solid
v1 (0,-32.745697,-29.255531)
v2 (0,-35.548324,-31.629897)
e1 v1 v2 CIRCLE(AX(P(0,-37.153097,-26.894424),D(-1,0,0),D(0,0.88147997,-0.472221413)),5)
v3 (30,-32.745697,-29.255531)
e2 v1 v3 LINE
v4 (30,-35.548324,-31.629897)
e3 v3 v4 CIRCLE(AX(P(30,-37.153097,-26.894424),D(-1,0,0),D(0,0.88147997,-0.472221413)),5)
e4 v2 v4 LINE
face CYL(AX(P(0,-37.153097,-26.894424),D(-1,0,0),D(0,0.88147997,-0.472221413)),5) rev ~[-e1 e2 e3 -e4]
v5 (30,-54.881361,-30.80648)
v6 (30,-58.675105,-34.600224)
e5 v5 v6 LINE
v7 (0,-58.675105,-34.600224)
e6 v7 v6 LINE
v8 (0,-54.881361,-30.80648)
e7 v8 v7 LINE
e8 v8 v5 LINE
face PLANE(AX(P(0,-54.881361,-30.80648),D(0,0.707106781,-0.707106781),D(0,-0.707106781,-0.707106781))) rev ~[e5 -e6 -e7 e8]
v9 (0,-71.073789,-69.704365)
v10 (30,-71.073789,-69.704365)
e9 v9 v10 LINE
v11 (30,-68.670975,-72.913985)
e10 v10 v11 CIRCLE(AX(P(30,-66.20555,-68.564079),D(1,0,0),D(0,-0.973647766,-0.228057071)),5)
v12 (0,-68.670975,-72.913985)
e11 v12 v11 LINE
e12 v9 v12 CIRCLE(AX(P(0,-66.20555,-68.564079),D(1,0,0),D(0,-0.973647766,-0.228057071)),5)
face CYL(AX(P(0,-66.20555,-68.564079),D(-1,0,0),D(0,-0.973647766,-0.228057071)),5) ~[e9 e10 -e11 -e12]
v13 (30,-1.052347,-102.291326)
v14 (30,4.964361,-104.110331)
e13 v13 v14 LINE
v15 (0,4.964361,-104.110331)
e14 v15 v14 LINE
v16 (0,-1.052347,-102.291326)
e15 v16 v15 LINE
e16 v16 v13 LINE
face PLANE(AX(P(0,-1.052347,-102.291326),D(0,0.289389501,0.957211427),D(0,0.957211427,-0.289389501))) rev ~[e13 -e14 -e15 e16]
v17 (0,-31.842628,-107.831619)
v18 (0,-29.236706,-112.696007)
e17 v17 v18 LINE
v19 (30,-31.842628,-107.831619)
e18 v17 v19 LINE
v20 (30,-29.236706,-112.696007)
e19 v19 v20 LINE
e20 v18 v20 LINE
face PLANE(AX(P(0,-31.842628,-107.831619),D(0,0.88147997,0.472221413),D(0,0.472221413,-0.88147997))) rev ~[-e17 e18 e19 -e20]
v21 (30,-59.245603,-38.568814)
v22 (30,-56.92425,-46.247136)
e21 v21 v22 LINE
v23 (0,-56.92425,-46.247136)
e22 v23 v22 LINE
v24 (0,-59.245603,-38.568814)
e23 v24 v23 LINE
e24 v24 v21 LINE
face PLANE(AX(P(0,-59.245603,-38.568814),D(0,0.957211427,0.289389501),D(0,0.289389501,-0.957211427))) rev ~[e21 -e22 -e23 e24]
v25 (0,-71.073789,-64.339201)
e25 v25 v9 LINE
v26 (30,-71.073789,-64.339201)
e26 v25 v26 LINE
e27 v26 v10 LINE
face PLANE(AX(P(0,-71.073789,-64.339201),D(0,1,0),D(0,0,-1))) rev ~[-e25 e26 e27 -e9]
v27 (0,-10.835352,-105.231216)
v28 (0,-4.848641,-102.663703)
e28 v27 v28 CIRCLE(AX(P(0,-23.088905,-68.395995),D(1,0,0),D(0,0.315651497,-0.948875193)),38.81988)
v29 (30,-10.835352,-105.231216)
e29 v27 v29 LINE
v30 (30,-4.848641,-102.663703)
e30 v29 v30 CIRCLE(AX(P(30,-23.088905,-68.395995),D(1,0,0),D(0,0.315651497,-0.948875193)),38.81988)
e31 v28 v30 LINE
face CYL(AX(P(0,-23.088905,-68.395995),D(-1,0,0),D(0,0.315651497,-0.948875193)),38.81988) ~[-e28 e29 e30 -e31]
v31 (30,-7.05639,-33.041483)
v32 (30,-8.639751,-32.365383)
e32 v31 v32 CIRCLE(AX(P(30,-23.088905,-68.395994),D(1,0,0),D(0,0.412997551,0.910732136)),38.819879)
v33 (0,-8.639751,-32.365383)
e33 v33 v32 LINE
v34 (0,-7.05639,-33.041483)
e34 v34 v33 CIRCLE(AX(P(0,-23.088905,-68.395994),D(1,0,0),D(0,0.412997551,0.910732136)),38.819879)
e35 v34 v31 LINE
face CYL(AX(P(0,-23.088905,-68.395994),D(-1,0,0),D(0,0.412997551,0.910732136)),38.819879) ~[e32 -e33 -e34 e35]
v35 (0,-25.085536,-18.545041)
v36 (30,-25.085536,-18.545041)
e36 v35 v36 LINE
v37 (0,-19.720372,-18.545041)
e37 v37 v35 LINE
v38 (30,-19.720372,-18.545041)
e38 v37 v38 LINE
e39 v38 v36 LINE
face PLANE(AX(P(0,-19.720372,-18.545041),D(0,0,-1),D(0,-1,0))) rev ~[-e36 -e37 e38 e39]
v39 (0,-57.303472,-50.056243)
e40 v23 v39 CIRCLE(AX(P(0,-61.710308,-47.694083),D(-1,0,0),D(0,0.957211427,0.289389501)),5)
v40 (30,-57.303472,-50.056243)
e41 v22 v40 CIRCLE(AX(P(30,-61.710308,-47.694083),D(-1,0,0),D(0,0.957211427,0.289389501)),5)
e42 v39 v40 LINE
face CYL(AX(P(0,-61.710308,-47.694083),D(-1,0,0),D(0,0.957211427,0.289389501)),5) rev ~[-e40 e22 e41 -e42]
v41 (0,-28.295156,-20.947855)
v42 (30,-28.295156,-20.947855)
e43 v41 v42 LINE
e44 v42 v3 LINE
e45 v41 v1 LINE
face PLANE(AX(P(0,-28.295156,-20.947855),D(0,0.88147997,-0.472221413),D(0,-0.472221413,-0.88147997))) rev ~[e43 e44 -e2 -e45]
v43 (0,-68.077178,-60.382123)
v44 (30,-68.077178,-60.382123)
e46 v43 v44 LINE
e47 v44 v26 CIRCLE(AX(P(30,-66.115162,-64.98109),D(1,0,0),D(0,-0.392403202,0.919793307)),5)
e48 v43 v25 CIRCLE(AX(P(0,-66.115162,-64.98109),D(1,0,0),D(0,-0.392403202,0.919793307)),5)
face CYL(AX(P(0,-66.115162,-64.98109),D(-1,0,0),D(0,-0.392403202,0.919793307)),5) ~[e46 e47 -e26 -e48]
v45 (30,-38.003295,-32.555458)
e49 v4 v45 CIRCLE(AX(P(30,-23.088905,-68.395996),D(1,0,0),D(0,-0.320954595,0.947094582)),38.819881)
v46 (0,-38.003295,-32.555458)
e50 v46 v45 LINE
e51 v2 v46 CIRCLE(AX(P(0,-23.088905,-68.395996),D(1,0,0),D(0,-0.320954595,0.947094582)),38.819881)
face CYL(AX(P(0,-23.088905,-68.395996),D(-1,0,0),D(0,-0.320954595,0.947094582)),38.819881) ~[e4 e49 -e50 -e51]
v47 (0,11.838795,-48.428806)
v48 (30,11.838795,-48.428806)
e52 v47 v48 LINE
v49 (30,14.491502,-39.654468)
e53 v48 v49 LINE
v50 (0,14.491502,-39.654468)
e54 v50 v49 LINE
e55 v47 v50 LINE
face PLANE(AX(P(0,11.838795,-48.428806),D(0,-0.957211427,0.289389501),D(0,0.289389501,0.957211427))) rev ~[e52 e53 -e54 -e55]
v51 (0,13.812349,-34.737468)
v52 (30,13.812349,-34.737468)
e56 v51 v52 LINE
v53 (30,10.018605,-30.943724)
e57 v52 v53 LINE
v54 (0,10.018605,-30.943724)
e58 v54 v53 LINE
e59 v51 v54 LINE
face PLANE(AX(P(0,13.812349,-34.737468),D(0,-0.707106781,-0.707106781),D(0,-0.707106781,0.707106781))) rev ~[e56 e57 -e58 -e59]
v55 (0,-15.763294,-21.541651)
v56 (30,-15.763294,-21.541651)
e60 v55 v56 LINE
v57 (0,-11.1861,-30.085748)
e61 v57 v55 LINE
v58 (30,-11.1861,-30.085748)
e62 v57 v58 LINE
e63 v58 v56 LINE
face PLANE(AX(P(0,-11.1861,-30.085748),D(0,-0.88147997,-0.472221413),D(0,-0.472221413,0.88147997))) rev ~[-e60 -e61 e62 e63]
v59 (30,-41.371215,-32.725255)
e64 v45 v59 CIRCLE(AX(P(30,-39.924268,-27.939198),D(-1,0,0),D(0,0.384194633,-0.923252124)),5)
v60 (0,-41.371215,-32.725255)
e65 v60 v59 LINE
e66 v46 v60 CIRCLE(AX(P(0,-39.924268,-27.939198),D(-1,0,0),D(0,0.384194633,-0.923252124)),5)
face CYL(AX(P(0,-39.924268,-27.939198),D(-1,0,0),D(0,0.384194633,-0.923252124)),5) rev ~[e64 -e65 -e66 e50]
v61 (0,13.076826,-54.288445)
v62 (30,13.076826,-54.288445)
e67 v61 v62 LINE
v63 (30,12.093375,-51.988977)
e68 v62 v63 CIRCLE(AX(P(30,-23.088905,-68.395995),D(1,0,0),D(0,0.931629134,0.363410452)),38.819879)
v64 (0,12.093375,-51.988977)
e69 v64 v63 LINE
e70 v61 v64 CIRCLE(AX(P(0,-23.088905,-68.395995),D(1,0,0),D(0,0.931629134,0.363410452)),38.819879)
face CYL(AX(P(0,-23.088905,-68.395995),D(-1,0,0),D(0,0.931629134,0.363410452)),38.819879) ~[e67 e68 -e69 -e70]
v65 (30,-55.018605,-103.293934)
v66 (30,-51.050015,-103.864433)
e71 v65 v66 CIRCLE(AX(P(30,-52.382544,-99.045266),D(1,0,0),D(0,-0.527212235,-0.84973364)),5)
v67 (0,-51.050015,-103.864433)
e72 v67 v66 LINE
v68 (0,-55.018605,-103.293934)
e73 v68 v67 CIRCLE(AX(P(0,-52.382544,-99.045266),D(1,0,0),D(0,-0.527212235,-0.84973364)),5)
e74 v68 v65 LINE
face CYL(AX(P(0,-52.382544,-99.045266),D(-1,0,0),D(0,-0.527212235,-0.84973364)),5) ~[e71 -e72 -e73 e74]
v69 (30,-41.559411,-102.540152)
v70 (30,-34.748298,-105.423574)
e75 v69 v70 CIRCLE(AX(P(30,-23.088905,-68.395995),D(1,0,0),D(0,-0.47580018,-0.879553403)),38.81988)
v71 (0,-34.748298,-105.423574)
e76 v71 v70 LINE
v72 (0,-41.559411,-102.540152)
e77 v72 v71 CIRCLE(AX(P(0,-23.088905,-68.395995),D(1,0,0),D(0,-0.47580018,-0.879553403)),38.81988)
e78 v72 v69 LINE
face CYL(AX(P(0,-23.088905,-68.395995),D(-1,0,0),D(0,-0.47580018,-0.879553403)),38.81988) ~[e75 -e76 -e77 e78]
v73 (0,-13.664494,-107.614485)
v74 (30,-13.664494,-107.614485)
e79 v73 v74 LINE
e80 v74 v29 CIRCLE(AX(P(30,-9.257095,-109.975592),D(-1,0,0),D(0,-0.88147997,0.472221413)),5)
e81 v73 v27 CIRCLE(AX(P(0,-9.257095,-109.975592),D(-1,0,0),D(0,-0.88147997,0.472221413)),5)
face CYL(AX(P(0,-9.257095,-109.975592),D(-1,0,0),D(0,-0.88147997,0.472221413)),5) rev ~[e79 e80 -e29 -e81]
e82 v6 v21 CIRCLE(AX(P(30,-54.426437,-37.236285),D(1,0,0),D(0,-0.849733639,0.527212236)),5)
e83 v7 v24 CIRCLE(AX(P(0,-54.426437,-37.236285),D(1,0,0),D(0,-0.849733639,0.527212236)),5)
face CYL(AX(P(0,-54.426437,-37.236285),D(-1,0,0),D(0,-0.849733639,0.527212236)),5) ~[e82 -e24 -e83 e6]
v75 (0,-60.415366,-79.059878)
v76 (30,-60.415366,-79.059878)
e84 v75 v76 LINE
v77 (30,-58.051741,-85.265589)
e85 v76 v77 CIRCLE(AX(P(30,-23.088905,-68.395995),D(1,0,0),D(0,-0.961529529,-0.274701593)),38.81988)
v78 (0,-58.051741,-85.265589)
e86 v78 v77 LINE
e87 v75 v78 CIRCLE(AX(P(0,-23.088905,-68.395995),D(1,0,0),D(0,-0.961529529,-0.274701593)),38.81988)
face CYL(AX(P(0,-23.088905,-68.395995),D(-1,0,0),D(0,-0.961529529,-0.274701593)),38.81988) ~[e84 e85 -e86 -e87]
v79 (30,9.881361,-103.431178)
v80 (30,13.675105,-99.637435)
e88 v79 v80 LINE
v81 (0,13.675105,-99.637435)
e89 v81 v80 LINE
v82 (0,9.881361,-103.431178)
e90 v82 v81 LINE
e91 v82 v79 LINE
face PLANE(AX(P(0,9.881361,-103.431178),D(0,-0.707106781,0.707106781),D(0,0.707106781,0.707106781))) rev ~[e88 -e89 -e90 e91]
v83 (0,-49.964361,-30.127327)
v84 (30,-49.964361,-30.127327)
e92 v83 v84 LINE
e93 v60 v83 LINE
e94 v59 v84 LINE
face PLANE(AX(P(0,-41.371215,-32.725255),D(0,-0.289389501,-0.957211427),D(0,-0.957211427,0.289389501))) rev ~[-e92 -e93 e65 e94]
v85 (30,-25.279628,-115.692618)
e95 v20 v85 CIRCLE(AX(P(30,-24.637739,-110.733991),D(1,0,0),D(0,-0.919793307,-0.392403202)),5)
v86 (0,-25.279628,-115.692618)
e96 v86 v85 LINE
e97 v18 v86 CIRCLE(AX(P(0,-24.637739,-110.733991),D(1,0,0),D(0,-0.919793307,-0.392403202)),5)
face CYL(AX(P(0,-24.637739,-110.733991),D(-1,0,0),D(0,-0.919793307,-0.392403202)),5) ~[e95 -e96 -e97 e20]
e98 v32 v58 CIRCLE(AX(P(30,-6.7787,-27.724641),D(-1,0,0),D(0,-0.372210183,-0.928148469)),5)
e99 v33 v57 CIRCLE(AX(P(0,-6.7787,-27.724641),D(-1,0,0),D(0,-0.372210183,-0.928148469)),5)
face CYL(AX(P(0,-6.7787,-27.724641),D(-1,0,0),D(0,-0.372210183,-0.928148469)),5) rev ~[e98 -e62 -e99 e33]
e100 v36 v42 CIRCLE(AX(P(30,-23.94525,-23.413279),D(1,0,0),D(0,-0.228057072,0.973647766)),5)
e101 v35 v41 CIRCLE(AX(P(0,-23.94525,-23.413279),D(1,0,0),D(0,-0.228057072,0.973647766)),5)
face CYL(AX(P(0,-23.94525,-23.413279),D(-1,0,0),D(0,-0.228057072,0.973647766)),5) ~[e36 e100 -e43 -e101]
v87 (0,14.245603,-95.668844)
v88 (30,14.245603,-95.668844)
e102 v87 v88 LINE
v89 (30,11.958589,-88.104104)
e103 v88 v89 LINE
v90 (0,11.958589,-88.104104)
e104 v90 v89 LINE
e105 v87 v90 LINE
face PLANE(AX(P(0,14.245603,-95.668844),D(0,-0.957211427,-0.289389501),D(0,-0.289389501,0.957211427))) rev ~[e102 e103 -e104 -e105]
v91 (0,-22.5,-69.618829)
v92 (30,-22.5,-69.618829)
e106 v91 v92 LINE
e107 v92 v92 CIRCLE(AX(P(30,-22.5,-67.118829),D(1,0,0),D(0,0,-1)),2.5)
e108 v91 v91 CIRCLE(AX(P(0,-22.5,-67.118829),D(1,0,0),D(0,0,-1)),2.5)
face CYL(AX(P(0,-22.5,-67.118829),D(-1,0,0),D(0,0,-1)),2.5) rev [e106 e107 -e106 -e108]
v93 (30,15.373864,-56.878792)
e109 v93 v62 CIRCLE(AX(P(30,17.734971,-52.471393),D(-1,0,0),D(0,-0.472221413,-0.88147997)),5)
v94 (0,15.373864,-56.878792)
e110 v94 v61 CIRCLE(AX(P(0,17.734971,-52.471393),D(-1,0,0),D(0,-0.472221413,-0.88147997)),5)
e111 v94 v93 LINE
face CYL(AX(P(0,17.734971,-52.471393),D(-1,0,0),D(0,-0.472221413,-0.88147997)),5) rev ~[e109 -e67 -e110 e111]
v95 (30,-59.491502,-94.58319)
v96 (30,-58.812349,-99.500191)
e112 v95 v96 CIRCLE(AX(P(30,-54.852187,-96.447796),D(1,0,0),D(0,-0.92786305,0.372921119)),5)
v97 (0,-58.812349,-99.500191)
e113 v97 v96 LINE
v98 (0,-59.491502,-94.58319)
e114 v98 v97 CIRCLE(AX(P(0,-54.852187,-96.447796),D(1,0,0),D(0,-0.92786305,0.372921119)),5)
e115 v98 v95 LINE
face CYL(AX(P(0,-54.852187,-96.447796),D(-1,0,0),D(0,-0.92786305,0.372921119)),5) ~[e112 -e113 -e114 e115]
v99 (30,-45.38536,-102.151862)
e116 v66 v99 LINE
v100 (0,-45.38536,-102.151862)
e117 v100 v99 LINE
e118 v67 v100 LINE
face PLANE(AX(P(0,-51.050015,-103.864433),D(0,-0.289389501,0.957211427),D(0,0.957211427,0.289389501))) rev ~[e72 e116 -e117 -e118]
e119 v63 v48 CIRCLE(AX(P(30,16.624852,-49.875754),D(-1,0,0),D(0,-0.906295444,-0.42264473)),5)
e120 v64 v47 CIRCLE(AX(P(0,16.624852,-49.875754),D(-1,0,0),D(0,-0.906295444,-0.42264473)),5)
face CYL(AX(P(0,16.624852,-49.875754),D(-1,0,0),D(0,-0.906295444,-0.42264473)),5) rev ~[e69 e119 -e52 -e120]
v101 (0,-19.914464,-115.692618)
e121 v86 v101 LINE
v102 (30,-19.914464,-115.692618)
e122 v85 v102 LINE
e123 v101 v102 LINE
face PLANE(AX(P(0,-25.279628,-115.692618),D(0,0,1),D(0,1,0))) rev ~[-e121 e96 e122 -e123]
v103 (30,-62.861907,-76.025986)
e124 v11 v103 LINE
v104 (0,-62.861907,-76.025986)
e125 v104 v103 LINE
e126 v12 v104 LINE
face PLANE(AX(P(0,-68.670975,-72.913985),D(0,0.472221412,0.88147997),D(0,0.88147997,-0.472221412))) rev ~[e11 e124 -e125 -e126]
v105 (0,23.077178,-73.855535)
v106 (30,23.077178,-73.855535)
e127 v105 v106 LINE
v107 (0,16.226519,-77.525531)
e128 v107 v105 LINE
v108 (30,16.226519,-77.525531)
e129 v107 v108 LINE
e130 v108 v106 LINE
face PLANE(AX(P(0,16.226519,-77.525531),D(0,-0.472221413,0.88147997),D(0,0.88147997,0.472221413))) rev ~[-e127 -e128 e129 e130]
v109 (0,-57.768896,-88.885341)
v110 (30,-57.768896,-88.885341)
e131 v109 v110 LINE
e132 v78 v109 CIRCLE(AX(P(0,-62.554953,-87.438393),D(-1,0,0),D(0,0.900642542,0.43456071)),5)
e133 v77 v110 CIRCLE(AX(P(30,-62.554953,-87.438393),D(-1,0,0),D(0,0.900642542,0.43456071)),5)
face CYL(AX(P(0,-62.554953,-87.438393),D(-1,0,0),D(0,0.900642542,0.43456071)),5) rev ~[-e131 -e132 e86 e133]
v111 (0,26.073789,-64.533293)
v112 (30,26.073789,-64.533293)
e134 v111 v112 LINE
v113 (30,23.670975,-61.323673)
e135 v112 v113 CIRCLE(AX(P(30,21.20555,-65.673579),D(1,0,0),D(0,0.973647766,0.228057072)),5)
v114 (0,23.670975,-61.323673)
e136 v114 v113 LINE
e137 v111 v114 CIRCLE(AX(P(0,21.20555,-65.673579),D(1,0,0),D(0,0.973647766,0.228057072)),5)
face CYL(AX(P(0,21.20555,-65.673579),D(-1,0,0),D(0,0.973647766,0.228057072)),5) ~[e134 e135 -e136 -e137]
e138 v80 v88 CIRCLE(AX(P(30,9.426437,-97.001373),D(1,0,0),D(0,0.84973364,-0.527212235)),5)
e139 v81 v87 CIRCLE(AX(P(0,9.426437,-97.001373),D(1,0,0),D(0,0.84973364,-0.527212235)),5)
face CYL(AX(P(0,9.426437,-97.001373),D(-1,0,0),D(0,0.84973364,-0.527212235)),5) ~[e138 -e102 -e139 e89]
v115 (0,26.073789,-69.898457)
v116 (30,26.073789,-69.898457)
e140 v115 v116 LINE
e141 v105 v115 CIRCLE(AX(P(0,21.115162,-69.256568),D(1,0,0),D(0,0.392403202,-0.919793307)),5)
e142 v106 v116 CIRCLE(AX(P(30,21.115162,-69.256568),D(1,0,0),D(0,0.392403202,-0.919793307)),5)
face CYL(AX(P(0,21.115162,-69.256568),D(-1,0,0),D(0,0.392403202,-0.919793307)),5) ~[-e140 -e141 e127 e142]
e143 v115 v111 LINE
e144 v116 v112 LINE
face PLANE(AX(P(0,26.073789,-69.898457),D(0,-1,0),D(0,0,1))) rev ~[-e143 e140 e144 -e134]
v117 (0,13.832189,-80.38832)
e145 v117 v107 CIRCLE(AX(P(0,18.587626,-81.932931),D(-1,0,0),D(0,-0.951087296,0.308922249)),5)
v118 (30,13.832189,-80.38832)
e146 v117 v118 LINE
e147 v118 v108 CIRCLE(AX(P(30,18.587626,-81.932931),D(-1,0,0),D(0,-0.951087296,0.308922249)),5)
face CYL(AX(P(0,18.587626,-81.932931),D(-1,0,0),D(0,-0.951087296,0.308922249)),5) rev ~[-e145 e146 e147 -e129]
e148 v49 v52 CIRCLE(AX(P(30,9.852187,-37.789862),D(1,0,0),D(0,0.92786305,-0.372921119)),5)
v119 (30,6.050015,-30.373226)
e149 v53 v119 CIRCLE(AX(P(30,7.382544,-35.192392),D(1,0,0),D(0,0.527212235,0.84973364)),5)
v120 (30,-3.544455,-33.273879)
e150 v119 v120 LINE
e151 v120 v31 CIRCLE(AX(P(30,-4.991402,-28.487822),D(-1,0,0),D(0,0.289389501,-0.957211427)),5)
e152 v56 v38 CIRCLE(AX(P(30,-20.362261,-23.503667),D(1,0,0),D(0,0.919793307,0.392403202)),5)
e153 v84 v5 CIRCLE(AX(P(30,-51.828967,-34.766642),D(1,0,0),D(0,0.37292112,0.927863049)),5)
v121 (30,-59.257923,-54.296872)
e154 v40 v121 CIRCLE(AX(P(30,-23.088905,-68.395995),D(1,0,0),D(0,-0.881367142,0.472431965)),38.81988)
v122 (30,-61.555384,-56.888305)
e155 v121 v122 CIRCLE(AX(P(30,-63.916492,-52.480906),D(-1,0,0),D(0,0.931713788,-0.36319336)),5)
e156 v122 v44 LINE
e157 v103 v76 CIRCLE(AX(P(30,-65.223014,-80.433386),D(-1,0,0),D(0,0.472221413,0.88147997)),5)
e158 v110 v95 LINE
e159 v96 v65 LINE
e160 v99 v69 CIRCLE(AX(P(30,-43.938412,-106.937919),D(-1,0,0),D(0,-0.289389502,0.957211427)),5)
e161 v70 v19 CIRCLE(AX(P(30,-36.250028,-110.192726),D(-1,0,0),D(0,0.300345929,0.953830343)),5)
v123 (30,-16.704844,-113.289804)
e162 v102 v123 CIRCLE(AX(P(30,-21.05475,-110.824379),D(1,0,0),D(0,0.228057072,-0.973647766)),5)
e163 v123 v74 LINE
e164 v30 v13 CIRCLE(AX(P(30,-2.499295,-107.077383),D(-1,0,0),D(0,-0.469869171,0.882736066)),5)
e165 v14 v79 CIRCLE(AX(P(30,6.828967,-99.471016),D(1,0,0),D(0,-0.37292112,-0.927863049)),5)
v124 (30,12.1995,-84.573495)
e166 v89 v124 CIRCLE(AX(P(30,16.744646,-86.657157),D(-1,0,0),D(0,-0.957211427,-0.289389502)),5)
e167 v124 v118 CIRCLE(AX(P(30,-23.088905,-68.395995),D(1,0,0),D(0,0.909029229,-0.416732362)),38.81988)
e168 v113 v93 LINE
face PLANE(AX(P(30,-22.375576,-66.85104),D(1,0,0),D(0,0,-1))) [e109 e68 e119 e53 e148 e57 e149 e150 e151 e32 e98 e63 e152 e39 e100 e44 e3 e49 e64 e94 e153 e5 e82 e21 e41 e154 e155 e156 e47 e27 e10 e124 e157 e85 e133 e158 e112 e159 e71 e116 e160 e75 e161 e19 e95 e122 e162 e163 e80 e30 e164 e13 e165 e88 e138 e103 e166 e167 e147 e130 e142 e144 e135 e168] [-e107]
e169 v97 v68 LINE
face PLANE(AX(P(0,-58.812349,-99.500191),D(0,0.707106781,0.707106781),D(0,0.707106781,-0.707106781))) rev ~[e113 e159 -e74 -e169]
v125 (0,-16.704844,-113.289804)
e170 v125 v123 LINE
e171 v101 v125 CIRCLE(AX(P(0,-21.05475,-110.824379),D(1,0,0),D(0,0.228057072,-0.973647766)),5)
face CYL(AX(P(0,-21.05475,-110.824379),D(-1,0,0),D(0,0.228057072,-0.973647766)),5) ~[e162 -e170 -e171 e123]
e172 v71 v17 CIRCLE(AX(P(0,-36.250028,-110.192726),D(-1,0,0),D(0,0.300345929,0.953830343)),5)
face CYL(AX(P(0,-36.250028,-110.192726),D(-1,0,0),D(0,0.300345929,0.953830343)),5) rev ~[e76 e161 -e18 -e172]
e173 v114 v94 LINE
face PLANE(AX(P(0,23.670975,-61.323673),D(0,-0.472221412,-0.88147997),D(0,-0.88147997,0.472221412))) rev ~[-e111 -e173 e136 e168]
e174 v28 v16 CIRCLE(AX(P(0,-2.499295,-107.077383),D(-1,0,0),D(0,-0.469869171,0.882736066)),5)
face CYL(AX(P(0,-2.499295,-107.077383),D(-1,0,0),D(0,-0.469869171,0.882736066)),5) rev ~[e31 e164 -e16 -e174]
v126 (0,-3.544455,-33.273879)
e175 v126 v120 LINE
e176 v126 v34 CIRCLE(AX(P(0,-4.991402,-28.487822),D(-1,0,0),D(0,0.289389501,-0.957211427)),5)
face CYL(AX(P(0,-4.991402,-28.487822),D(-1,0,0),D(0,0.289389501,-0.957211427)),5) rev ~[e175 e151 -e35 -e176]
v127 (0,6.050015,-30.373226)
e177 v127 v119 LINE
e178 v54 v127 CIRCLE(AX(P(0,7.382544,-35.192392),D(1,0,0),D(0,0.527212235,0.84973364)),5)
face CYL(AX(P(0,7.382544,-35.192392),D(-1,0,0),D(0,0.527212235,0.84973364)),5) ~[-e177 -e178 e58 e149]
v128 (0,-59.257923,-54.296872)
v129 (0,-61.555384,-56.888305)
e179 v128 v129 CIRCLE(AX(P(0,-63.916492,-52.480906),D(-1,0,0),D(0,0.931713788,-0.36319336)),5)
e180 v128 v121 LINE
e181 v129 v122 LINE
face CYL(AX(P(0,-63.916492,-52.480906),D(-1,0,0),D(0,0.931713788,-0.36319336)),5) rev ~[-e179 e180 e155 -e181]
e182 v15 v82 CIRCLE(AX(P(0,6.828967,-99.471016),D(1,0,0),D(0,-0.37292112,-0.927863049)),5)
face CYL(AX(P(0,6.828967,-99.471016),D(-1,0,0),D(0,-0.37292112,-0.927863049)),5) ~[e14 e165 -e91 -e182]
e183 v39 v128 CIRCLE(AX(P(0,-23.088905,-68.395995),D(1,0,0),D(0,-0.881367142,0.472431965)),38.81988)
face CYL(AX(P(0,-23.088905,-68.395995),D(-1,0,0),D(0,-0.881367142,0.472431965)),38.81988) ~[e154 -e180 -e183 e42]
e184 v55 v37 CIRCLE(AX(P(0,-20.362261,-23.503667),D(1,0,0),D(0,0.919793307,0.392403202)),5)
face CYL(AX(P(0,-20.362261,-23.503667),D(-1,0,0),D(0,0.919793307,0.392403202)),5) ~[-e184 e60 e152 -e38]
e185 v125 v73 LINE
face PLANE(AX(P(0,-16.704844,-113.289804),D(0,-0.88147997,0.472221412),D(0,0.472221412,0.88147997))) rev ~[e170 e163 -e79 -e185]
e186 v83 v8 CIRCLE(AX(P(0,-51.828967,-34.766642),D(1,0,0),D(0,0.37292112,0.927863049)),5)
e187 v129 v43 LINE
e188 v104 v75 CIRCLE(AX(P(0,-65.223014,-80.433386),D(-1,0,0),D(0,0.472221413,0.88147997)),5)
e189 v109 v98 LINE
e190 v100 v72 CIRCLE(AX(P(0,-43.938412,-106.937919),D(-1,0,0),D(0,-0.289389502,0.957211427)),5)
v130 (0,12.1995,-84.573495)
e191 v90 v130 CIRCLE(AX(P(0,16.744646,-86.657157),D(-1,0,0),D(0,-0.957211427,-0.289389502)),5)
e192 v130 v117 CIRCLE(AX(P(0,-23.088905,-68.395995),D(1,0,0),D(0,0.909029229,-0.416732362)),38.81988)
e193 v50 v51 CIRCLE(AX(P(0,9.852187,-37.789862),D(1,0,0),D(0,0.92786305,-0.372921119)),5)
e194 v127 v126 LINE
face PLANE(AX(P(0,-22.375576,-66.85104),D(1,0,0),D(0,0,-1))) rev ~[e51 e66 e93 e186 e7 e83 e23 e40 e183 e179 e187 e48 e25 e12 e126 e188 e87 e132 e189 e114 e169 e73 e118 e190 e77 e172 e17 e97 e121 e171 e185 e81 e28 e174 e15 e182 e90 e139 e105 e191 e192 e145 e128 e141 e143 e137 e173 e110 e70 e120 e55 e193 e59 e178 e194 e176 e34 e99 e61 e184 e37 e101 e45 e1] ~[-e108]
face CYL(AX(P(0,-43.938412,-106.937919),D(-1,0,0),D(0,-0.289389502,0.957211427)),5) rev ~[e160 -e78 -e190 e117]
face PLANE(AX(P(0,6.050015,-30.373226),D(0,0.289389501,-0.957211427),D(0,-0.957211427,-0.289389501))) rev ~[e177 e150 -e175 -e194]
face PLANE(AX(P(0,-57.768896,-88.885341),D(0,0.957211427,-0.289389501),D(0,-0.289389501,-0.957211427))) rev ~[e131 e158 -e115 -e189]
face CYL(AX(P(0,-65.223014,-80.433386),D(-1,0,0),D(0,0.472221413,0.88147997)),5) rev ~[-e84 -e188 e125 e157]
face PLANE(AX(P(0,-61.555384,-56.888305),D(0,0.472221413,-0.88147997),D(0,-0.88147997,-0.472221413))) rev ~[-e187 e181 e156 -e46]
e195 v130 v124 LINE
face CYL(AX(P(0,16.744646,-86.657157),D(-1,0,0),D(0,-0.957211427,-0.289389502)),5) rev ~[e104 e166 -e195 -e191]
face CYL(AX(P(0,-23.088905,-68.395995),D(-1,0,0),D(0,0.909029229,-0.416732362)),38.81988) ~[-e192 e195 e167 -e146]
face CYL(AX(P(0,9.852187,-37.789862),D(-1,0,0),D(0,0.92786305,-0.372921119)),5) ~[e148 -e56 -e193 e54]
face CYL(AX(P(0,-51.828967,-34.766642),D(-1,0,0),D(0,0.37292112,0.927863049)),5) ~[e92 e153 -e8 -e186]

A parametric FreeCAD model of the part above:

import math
import FreeCAD as App
import Part
import Sketcher
Q = App.Units.Quantity

doc = App.newDocument("Part")
body = doc.addObject("PartDesign::Body", "Body")

sketch1 = body.newObject("Sketcher::SketchObject", "Sketch")
sketch1.AttachmentSupport = (doc.getObject("YZ_Plane"), [""])
sketch1.MapMode = "FlatFace"
sketch1.addGeometry(Part.LineSegment(App.Vector(-11.1861, -30.085748, 0), App.Vector(-15.763294, -21.541651, 0)), False)
sketch1.addGeometry(Part.ArcOfCircle(Part.Circle(App.Vector(-20.362261, -23.503667, 0), App.Vector(0, 0, 1), 5), math.radians(23.104117), math.radians(82.624141)), False)
sketch1.addGeometry(Part.LineSegment(App.Vector(-19.720372, -18.545041, 0), App.Vector(-25.085536, -18.545041, 0)), False)
sketch1.addGeometry(Part.ArcOfCircle(Part.Circle(App.Vector(-23.94525, -23.413279, 0), App.Vector(0, 0, 1), 5), math.radians(103.18271), math.radians(150.45645)), False)
sketch1.addGeometry(Part.LineSegment(App.Vector(-28.295156, -20.947855, 0), App.Vector(-32.745697, -29.255531, 0)), False)
sketch1.addGeometry(Part.ArcOfCircle(Part.Circle(App.Vector(-37.153097, -26.894424, 0), App.Vector(0, 0, 1), 5), math.radians(-71.279335), math.radians(-28.17859)), False)
sketch1.addGeometry(Part.ArcOfCircle(Part.Circle(App.Vector(-23.088905, -68.395996, 0), App.Vector(0, 0, 1), 38.819881), math.radians(108.720665), math.radians(112.593751)), False)
sketch1.addGeometry(Part.ArcOfCircle(Part.Circle(App.Vector(-39.924268, -27.939198, 0), App.Vector(0, 0, 1), 5), math.radians(-106.82141), math.radians(-67.406249)), False)
sketch1.addGeometry(Part.LineSegment(App.Vector(-41.371215, -32.725255, 0), App.Vector(-49.964361, -30.127327, 0)), False)
sketch1.addGeometry(Part.ArcOfCircle(Part.Circle(App.Vector(-51.828967, -34.766642, 0), App.Vector(0, 0, 1), 5), math.radians(68.104117), math.radians(127.624141)), False)
sketch1.addGeometry(Part.LineSegment(App.Vector(-54.881361, -30.80648, 0), App.Vector(-58.675105, -34.600224, 0)), False)
sketch1.addGeometry(Part.ArcOfCircle(Part.Circle(App.Vector(-54.426437, -37.236285, 0), App.Vector(0, 0, 1), 5), math.radians(148.18271), math.radians(195.45645)), False)
sketch1.addGeometry(Part.LineSegment(App.Vector(-59.245603, -38.568814, 0), App.Vector(-56.92425, -46.247136, 0)), False)
sketch1.addGeometry(Part.ArcOfCircle(Part.Circle(App.Vector(-61.710308, -47.694083, 0), App.Vector(0, 0, 1), 5), math.radians(-28.192277), math.radians(16.82141)), False)
sketch1.addGeometry(Part.ArcOfCircle(Part.Circle(App.Vector(-23.088905, -68.395995, 0), App.Vector(0, 0, 1), 38.81988), math.radians(151.807723), math.radians(158.703559)), False)
sketch1.addGeometry(Part.ArcOfCircle(Part.Circle(App.Vector(-63.916492, -52.480906, 0), App.Vector(0, 0, 1), 5), math.radians(-61.82141), math.radians(-21.296441)), False)
sketch1.addGeometry(Part.LineSegment(App.Vector(-61.555384, -56.888305, 0), App.Vector(-68.077178, -60.382123, 0)), False)
sketch1.addGeometry(Part.ArcOfCircle(Part.Circle(App.Vector(-66.115162, -64.98109, 0), App.Vector(0, 0, 1), 5), math.radians(113.104116), math.radians(172.624141)), False)
sketch1.addGeometry(Part.LineSegment(App.Vector(-71.073789, -64.339201, 0), App.Vector(-71.073789, -69.704365, 0)), False)
sketch1.addGeometry(Part.ArcOfCircle(Part.Circle(App.Vector(-66.20555, -68.564079, 0), App.Vector(0, 0, 1), 5), math.radians(-166.81729), math.radians(-119.54355)), False)
sketch1.addGeometry(Part.LineSegment(App.Vector(-68.670975, -72.913985, 0), App.Vector(-62.861907, -76.025986, 0)), False)
sketch1.addGeometry(Part.ArcOfCircle(Part.Circle(App.Vector(-65.223014, -80.433386, 0), App.Vector(0, 0, 1), 5), math.radians(15.944232), math.radians(61.82141)), False)
sketch1.addGeometry(Part.ArcOfCircle(Part.Circle(App.Vector(-23.088905, -68.395995, 0), App.Vector(0, 0, 1), 38.81988), math.radians(-164.055768), math.radians(-154.242656)), False)
sketch1.addGeometry(Part.ArcOfCircle(Part.Circle(App.Vector(-62.554953, -87.438393, 0), App.Vector(0, 0, 1), 5), math.radians(-16.82141), math.radians(25.757344)), False)
sketch1.addGeometry(Part.LineSegment(App.Vector(-57.768896, -88.885341, 0), App.Vector(-59.491502, -94.58319, 0)), False)
sketch1.addGeometry(Part.ArcOfCircle(Part.Circle(App.Vector(-54.852187, -96.447796, 0), App.Vector(0, 0, 1), 5), math.radians(158.104117), math.radians(217.624141)), False)
sketch1.addGeometry(Part.LineSegment(App.Vector(-58.812349, -99.500191, 0), App.Vector(-55.018605, -103.293934, 0)), False)
sketch1.addGeometry(Part.ArcOfCircle(Part.Circle(App.Vector(-52.382544, -99.045266, 0), App.Vector(0, 0, 1), 5), math.radians(-121.81729), math.radians(-74.54355)), False)
sketch1.addGeometry(Part.LineSegment(App.Vector(-51.050015, -103.864433, 0), App.Vector(-45.38536, -102.151862, 0)), False)
sketch1.addGeometry(Part.ArcOfCircle(Part.Circle(App.Vector(-43.938412, -106.937919, 0), App.Vector(0, 0, 1), 5), math.radians(61.588538), math.radians(106.82141)), False)
sketch1.addGeometry(Part.ArcOfCircle(Part.Circle(App.Vector(-23.088905, -68.395995, 0), App.Vector(0, 0, 1), 38.81988), math.radians(-118.411462), math.radians(-107.478382)), False)
sketch1.addGeometry(Part.ArcOfCircle(Part.Circle(App.Vector(-36.250028, -110.192726, 0), App.Vector(0, 0, 1), 5), math.radians(28.17859), math.radians(72.521618)), False)
sketch1.addGeometry(Part.LineSegment(App.Vector(-31.842628, -107.831619, 0), App.Vector(-29.236706, -112.696007, 0)), False)
sketch1.addGeometry(Part.ArcOfCircle(Part.Circle(App.Vector(-24.637739, -110.733991, 0), App.Vector(0, 0, 1), 5), math.radians(-156.895883), math.radians(-97.375859)), False)
sketch1.addGeometry(Part.LineSegment(App.Vector(-25.279628, -115.692618, 0), App.Vector(-19.914464, -115.692618, 0)), False)
sketch1.addGeometry(Part.ArcOfCircle(Part.Circle(App.Vector(-21.05475, -110.824379, 0), App.Vector(0, 0, 1), 5), math.radians(-76.81729), math.radians(-29.54355)), False)
sketch1.addGeometry(Part.LineSegment(App.Vector(-16.704844, -113.289804, 0), App.Vector(-13.664494, -107.614485, 0)), False)
sketch1.addGeometry(Part.ArcOfCircle(Part.Circle(App.Vector(-9.257095, -109.975592, 0), App.Vector(0, 0, 1), 5), math.radians(108.400149), math.radians(151.82141)), False)
sketch1.addGeometry(Part.ArcOfCircle(Part.Circle(App.Vector(-23.088905, -68.395995, 0), App.Vector(0, 0, 1), 38.81988), math.radians(-71.599851), math.radians(-61.974195)), False)
sketch1.addGeometry(Part.ArcOfCircle(Part.Circle(App.Vector(-2.499295, -107.077383, 0), App.Vector(0, 0, 1), 5), math.radians(73.17859), math.radians(118.025805)), False)
sketch1.addGeometry(Part.LineSegment(App.Vector(-1.052347, -102.291326, 0), App.Vector(4.964361, -104.110331, 0)), False)
sketch1.addGeometry(Part.ArcOfCircle(Part.Circle(App.Vector(6.828967, -99.471016, 0), App.Vector(0, 0, 1), 5), math.radians(-111.895883), math.radians(-52.375859)), False)
sketch1.addGeometry(Part.LineSegment(App.Vector(9.881361, -103.431178, 0), App.Vector(13.675105, -99.637435, 0)), False)
sketch1.addGeometry(Part.ArcOfCircle(Part.Circle(App.Vector(9.426437, -97.001373, 0), App.Vector(0, 0, 1), 5), math.radians(-31.81729), math.radians(15.45645)), False)
sketch1.addGeometry(Part.LineSegment(App.Vector(14.245603, -95.668844, 0), App.Vector(11.958589, -88.104104, 0)), False)
sketch1.addGeometry(Part.ArcOfCircle(Part.Circle(App.Vector(16.744646, -86.657157, 0), App.Vector(0, 0, 1), 5), math.radians(155.371541), math.radians(196.82141)), False)
sketch1.addGeometry(Part.ArcOfCircle(Part.Circle(App.Vector(-23.088905, -68.395995, 0), App.Vector(0, 0, 1), 38.81988), math.radians(-24.628459), math.radians(-17.994292)), False)
sketch1.addGeometry(Part.ArcOfCircle(Part.Circle(App.Vector(18.587626, -81.932931, 0), App.Vector(0, 0, 1), 5), math.radians(118.17859), math.radians(162.005708)), False)
sketch1.addGeometry(Part.LineSegment(App.Vector(16.226519, -77.525531, 0), App.Vector(23.077178, -73.855535, 0)), False)
sketch1.addGeometry(Part.ArcOfCircle(Part.Circle(App.Vector(21.115162, -69.256568, 0), App.Vector(0, 0, 1), 5), math.radians(-66.895884), math.radians(-7.375859)), False)
sketch1.addGeometry(Part.LineSegment(App.Vector(26.073789, -69.898457, 0), App.Vector(26.073789, -64.533293, 0)), False)
sketch1.addGeometry(Part.ArcOfCircle(Part.Circle(App.Vector(21.20555, -65.673579, 0), App.Vector(0, 0, 1), 5), math.radians(13.18271), math.radians(60.45645)), False)
sketch1.addGeometry(Part.LineSegment(App.Vector(23.670975, -61.323673, 0), App.Vector(15.373864, -56.878792, 0)), False)
sketch1.addGeometry(Part.ArcOfCircle(Part.Circle(App.Vector(17.734971, -52.471393, 0), App.Vector(0, 0, 1), 5), math.radians(-158.690208), math.radians(-118.17859)), False)
sketch1.addGeometry(Part.ArcOfCircle(Part.Circle(App.Vector(-23.088905, -68.395995, 0), App.Vector(0, 0, 1), 38.819879), math.radians(21.309792), math.radians(25.001673)), False)
sketch1.addGeometry(Part.ArcOfCircle(Part.Circle(App.Vector(16.624852, -49.875754, 0), App.Vector(0, 0, 1), 5), math.radians(163.17859), math.radians(205.001673)), False)
sketch1.addGeometry(Part.LineSegment(App.Vector(11.838795, -48.428806, 0), App.Vector(14.491502, -39.654468, 0)), False)
sketch1.addGeometry(Part.ArcOfCircle(Part.Circle(App.Vector(9.852187, -37.789862, 0), App.Vector(0, 0, 1), 5), math.radians(-21.895883), math.radians(37.624141)), False)
sketch1.addGeometry(Part.LineSegment(App.Vector(13.812349, -34.737468, 0), App.Vector(10.018605, -30.943724, 0)), False)
sketch1.addGeometry(Part.ArcOfCircle(Part.Circle(App.Vector(7.382544, -35.192392, 0), App.Vector(0, 0, 1), 5), math.radians(58.18271), math.radians(105.45645)), False)
sketch1.addGeometry(Part.LineSegment(App.Vector(6.050015, -30.373226, 0), App.Vector(-3.544455, -33.273879, 0)), False)
sketch1.addGeometry(Part.ArcOfCircle(Part.Circle(App.Vector(-4.991402, -28.487822, 0), App.Vector(0, 0, 1), 5), math.radians(-114.393276), math.radians(-73.17859)), False)
sketch1.addGeometry(Part.ArcOfCircle(Part.Circle(App.Vector(-23.088905, -68.395994, 0), App.Vector(0, 0, 1), 38.819879), math.radians(65.606724), math.radians(68.14801)), False)
sketch1.addGeometry(Part.ArcOfCircle(Part.Circle(App.Vector(-6.7787, -27.724641, 0), App.Vector(0, 0, 1), 5), math.radians(-151.82141), math.radians(-111.85199)), False)
sketch1.addGeometry(Part.Circle(App.Vector(-22.5, -67.118829, 0), App.Vector(0, 0, 1), 2.5), False)
sketch1.addConstraint(Sketcher.Constraint("Coincident", 0, 2, 1, 1))
sketch1.addConstraint(Sketcher.Constraint("Coincident", 1, 2, 2, 1))
sketch1.addConstraint(Sketcher.Constraint("Coincident", 2, 2, 3, 1))
sketch1.addConstraint(Sketcher.Constraint("Coincident", 3, 2, 4, 1))
sketch1.addConstraint(Sketcher.Constraint("Coincident", 4, 2, 5, 2))
sketch1.addConstraint(Sketcher.Constraint("Coincident", 5, 1, 6, 1))
sketch1.addConstraint(Sketcher.Constraint("Coincident", 6, 2, 7, 2))
sketch1.addConstraint(Sketcher.Constraint("Coincident", 7, 1, 8, 1))
sketch1.addConstraint(Sketcher.Constraint("Coincident", 8, 2, 9, 1))
sketch1.addConstraint(Sketcher.Constraint("Coincident", 9, 2, 10, 1))
sketch1.addConstraint(Sketcher.Constraint("Coincident", 10, 2, 11, 1))
sketch1.addConstraint(Sketcher.Constraint("Coincident", 11, 2, 12, 1))
sketch1.addConstraint(Sketcher.Constraint("Coincident", 12, 2, 13, 2))
sketch1.addConstraint(Sketcher.Constraint("Coincident", 13, 1, 14, 1))
sketch1.addConstraint(Sketcher.Constraint("Coincident", 14, 2, 15, 2))
sketch1.addConstraint(Sketcher.Constraint("Coincident", 15, 1, 16, 1))
sketch1.addConstraint(Sketcher.Constraint("Coincident", 16, 2, 17, 1))
sketch1.addConstraint(Sketcher.Constraint("Coincident", 17, 2, 18, 1))
sketch1.addConstraint(Sketcher.Constraint("Coincident", 18, 2, 19, 1))
sketch1.addConstraint(Sketcher.Constraint("Coincident", 19, 2, 20, 1))
sketch1.addConstraint(Sketcher.Constraint("Coincident", 20, 2, 21, 2))
sketch1.addConstraint(Sketcher.Constraint("Coincident", 21, 1, 22, 1))
sketch1.addConstraint(Sketcher.Constraint("Coincident", 22, 2, 23, 2))
sketch1.addConstraint(Sketcher.Constraint("Coincident", 23, 1, 24, 1))
sketch1.addConstraint(Sketcher.Constraint("Coincident", 24, 2, 25, 1))
sketch1.addConstraint(Sketcher.Constraint("Coincident", 25, 2, 26, 1))
sketch1.addConstraint(Sketcher.Constraint("Coincident", 26, 2, 27, 1))
sketch1.addConstraint(Sketcher.Constraint("Coincident", 27, 2, 28, 1))
sketch1.addConstraint(Sketcher.Constraint("Coincident", 28, 2, 29, 2))
sketch1.addConstraint(Sketcher.Constraint("Coincident", 29, 1, 30, 1))
sketch1.addConstraint(Sketcher.Constraint("Coincident", 30, 2, 31, 2))
sketch1.addConstraint(Sketcher.Constraint("Coincident", 31, 1, 32, 1))
sketch1.addConstraint(Sketcher.Constraint("Coincident", 32, 2, 33, 1))
sketch1.addConstraint(Sketcher.Constraint("Coincident", 33, 2, 34, 1))
sketch1.addConstraint(Sketcher.Constraint("Coincident", 34, 2, 35, 1))
sketch1.addConstraint(Sketcher.Constraint("Coincident", 35, 2, 36, 1))
sketch1.addConstraint(Sketcher.Constraint("Coincident", 36, 2, 37, 2))
sketch1.addConstraint(Sketcher.Constraint("Coincident", 37, 1, 38, 1))
sketch1.addConstraint(Sketcher.Constraint("Coincident", 38, 2, 39, 2))
sketch1.addConstraint(Sketcher.Constraint("Coincident", 39, 1, 40, 1))
sketch1.addConstraint(Sketcher.Constraint("Coincident", 40, 2, 41, 1))
sketch1.addConstraint(Sketcher.Constraint("Coincident", 41, 2, 42, 1))
sketch1.addConstraint(Sketcher.Constraint("Coincident", 42, 2, 43, 1))
sketch1.addConstraint(Sketcher.Constraint("Coincident", 43, 2, 44, 1))
sketch1.addConstraint(Sketcher.Constraint("Coincident", 44, 2, 45, 2))
sketch1.addConstraint(Sketcher.Constraint("Coincident", 45, 1, 46, 1))
sketch1.addConstraint(Sketcher.Constraint("Coincident", 46, 2, 47, 2))
sketch1.addConstraint(Sketcher.Constraint("Coincident", 47, 1, 48, 1))
sketch1.addConstraint(Sketcher.Constraint("Coincident", 48, 2, 49, 1))
sketch1.addConstraint(Sketcher.Constraint("Coincident", 49, 2, 50, 1))
sketch1.addConstraint(Sketcher.Constraint("Coincident", 50, 2, 51, 1))
sketch1.addConstraint(Sketcher.Constraint("Coincident", 51, 2, 52, 1))
sketch1.addConstraint(Sketcher.Constraint("Coincident", 52, 2, 53, 2))
sketch1.addConstraint(Sketcher.Constraint("Coincident", 53, 1, 54, 1))
sketch1.addConstraint(Sketcher.Constraint("Coincident", 54, 2, 55, 2))
sketch1.addConstraint(Sketcher.Constraint("Coincident", 55, 1, 56, 1))
sketch1.addConstraint(Sketcher.Constraint("Coincident", 56, 2, 57, 1))
sketch1.addConstraint(Sketcher.Constraint("Coincident", 57, 2, 58, 1))
sketch1.addConstraint(Sketcher.Constraint("Coincident", 58, 2, 59, 1))
sketch1.addConstraint(Sketcher.Constraint("Coincident", 59, 2, 60, 1))
sketch1.addConstraint(Sketcher.Constraint("Coincident", 60, 2, 61, 2))
sketch1.addConstraint(Sketcher.Constraint("Coincident", 61, 1, 62, 1))
sketch1.addConstraint(Sketcher.Constraint("Coincident", 62, 2, 63, 2))
sketch1.addConstraint(Sketcher.Constraint("Coincident", 63, 1, 0, 1))
sketch1.addConstraint(Sketcher.Constraint("Horizontal", 2))
sketch1.addConstraint(Sketcher.Constraint("Vertical", 18))
sketch1.addConstraint(Sketcher.Constraint("Horizontal", 34))
sketch1.addConstraint(Sketcher.Constraint("Vertical", 50))
sketch1.addConstraint(Sketcher.Constraint("Coincident", 14, 3, 6, 3))
sketch1.addConstraint(Sketcher.Constraint("Coincident", 22, 3, 6, 3))
sketch1.addConstraint(Sketcher.Constraint("Coincident", 30, 3, 6, 3))
sketch1.addConstraint(Sketcher.Constraint("Coincident", 38, 3, 6, 3))
sketch1.addConstraint(Sketcher.Constraint("Coincident", 46, 3, 6, 3))
sketch1.addConstraint(Sketcher.Constraint("Coincident", 54, 3, 6, 3))
sketch1.addConstraint(Sketcher.Constraint("Coincident", 62, 3, 6, 3))
sketch1.addConstraint(Sketcher.Constraint("Diameter", 64, Q("5 mm")))
sketch1.addConstraint(Sketcher.Constraint("Radius", 1, Q("5 mm")))
sketch1.addConstraint(Sketcher.Constraint("Radius", 3, Q("5 mm")))
sketch1.addConstraint(Sketcher.Constraint("Radius", 5, Q("5 mm")))
sketch1.addConstraint(Sketcher.Constraint("Radius", 7, Q("5 mm")))
sketch1.addConstraint(Sketcher.Constraint("Radius", 9, Q("5 mm")))
sketch1.addConstraint(Sketcher.Constraint("Radius", 11, Q("5 mm")))
sketch1.addConstraint(Sketcher.Constraint("Radius", 13, Q("5 mm")))
sketch1.addConstraint(Sketcher.Constraint("Radius", 15, Q("5 mm")))
sketch1.addConstraint(Sketcher.Constraint("Radius", 17, Q("5 mm")))
sketch1.addConstraint(Sketcher.Constraint("Radius", 19, Q("5 mm")))
sketch1.addConstraint(Sketcher.Constraint("Radius", 21, Q("5 mm")))
sketch1.addConstraint(Sketcher.Constraint("Radius", 23, Q("5 mm")))
sketch1.addConstraint(Sketcher.Constraint("Radius", 25, Q("5 mm")))
sketch1.addConstraint(Sketcher.Constraint("Radius", 27, Q("5 mm")))
sketch1.addConstraint(Sketcher.Constraint("Radius", 29, Q("5 mm")))
sketch1.addConstraint(Sketcher.Constraint("Radius", 31, Q("5 mm")))
sketch1.addConstraint(Sketcher.Constraint("Radius", 33, Q("5 mm")))
sketch1.addConstraint(Sketcher.Constraint("Radius", 35, Q("5 mm")))
sketch1.addConstraint(Sketcher.Constraint("Radius", 37, Q("5 mm")))
sketch1.addConstraint(Sketcher.Constraint("Radius", 39, Q("5 mm")))
sketch1.addConstraint(Sketcher.Constraint("Radius", 41, Q("5 mm")))
sketch1.addConstraint(Sketcher.Constraint("Radius", 43, Q("5 mm")))
sketch1.addConstraint(Sketcher.Constraint("Radius", 45, Q("5 mm")))
sketch1.addConstraint(Sketcher.Constraint("Radius", 47, Q("5 mm")))
sketch1.addConstraint(Sketcher.Constraint("Radius", 49, Q("5 mm")))
sketch1.addConstraint(Sketcher.Constraint("Radius", 51, Q("5 mm")))
sketch1.addConstraint(Sketcher.Constraint("Radius", 53, Q("5 mm")))
sketch1.addConstraint(Sketcher.Constraint("Radius", 55, Q("5 mm")))
sketch1.addConstraint(Sketcher.Constraint("Radius", 57, Q("5 mm")))
sketch1.addConstraint(Sketcher.Constraint("Radius", 59, Q("5 mm")))
sketch1.addConstraint(Sketcher.Constraint("Radius", 61, Q("5 mm")))
sketch1.addConstraint(Sketcher.Constraint("Radius", 63, Q("5 mm")))
sketch1.addConstraint(Sketcher.Constraint("DistanceX", 64, 3, -1, 1, Q("22.5 mm")))
sketch1.addConstraint(Sketcher.Constraint("Radius", 6, Q("38.819881 mm")))
sketch1.addConstraint(Sketcher.Constraint("Radius", 14, Q("38.81988 mm")))
sketch1.addConstraint(Sketcher.Constraint("Radius", 22, Q("38.81988 mm")))
sketch1.addConstraint(Sketcher.Constraint("Radius", 30, Q("38.81988 mm")))
sketch1.addConstraint(Sketcher.Constraint("Radius", 38, Q("38.81988 mm")))
sketch1.addConstraint(Sketcher.Constraint("Radius", 46, Q("38.81988 mm")))
sketch1.addConstraint(Sketcher.Constraint("Radius", 54, Q("38.819879 mm")))
sketch1.addConstraint(Sketcher.Constraint("Radius", 62, Q("38.819879 mm")))
sketch1.addConstraint(Sketcher.Constraint("Distance", 0, Q("9.692899 mm")))
sketch1.addConstraint(Sketcher.Constraint("DistanceX", 63, 3, -1, 1, Q("6.7787 mm")))
sketch1.addConstraint(Sketcher.Constraint("DistanceY", 17, 2, -1, 1, Q("64.339201 mm")))
sketch1.addConstraint(Sketcher.Constraint("DistanceX", 24, 2, -1, 1, Q("59.491502 mm")))
sketch1.addConstraint(Sketcher.Constraint("DistanceX", 30, 2, -1, 1, Q("34.748298 mm")))
sketch1.addConstraint(Sketcher.Constraint("DistanceX", -1, 1, 45, 1, Q("12.1995 mm")))
sketch1.addConstraint(Sketcher.Constraint("DistanceX", -1, 1, 56, 2, Q("14.491502 mm")))
sketch1.addConstraint(Sketcher.Constraint("DistanceX", 63, 1, -1, 1, Q("11.1861 mm")))
sketch1.addConstraint(Sketcher.Constraint("Distance", 4, Q("9.424691 mm")))
sketch1.addConstraint(Sketcher.Constraint("Distance", 8, Q("8.97727 mm")))
sketch1.addConstraint(Sketcher.Constraint("Distance", 20, Q("6.59013 mm")))
sketch1.addConstraint(Sketcher.Constraint("Distance", 24, Q("5.952551 mm")))
sketch1.addConstraint(Sketcher.Constraint("Distance", 48, Q("7.77177 mm")))
sketch1.addConstraint(Sketcher.Constraint("DistanceX", 2, 2, 2, 1, Q("5.365164 mm")))
sketch1.addConstraint(Sketcher.Constraint("DistanceX", 34, 1, 34, 2, Q("5.365164 mm")))
sketch1.addConstraint(Sketcher.Constraint("DistanceY", 18, 2, 18, 1, Q("5.365164 mm")))
sketch1.addConstraint(Sketcher.Constraint("DistanceY", 50, 1, 50, 2, Q("5.365164 mm")))
sketch1.addConstraint(Sketcher.Constraint("DistanceX", 1, 3, -1, 1, Q("20.362261 mm")))
sketch1.addConstraint(Sketcher.Constraint("DistanceX", 3, 3, -1, 1, Q("23.94525 mm")))
sketch1.addConstraint(Sketcher.Constraint("DistanceY", 3, 3, -1, 1, Q("23.413279 mm")))
sketch1.addConstraint(Sketcher.Constraint("DistanceX", 15, 3, -1, 1, Q("63.916492 mm")))
sketch1.addConstraint(Sketcher.Constraint("DistanceX", 17, 3, -1, 1, Q("66.115162 mm")))
sketch1.addConstraint(Sketcher.Constraint("DistanceY", 17, 3, -1, 1, Q("64.98109 mm")))
sketch1.addConstraint(Sketcher.Constraint("DistanceX", 19, 3, -1, 1, Q("66.20555 mm")))
sketch1.addConstraint(Sketcher.Constraint("DistanceY", 29, 3, -1, 1, Q("106.937919 mm")))
sketch1.addConstraint(Sketcher.Constraint("DistanceX", 33, 3, -1, 1, Q("24.637739 mm")))
sketch1.addConstraint(Sketcher.Constraint("DistanceY", 33, 3, -1, 1, Q("110.733991 mm")))
sketch1.addConstraint(Sketcher.Constraint("DistanceX", 35, 3, -1, 1, Q("21.05475 mm")))
sketch1.addConstraint(Sketcher.Constraint("DistanceY", 35, 3, -1, 1, Q("110.824379 mm")))
sketch1.addConstraint(Sketcher.Constraint("DistanceY", 37, 3, -1, 1, Q("109.975592 mm")))
sketch1.addConstraint(Sketcher.Constraint("DistanceY", 47, 3, -1, 1, Q("81.932931 mm")))
sketch1.addConstraint(Sketcher.Constraint("DistanceX", -1, 1, 49, 3, Q("21.115162 mm")))
sketch1.addConstraint(Sketcher.Constraint("DistanceY", 49, 3, -1, 1, Q("69.256568 mm")))
sketch1.addConstraint(Sketcher.Constraint("DistanceX", -1, 1, 51, 3, Q("21.20555 mm")))
sketch1.addConstraint(Sketcher.Constraint("DistanceY", 51, 3, -1, 1, Q("65.673579 mm")))
sketch1.addConstraint(Sketcher.Constraint("DistanceX", -1, 1, 53, 3, Q("17.734971 mm")))
sketch1.addConstraint(Sketcher.Constraint("DistanceY", 63, 3, -1, 1, Q("27.724641 mm")))
sketch1.addConstraint(Sketcher.Constraint("DistanceY", 64, 3, -1, 1, Q("67.118829 mm")))
sketch1.addConstraint(Sketcher.Constraint("DistanceY", 0, 2, -1, 1, Q("21.541651 mm")))
sketch1.addConstraint(Sketcher.Constraint("DistanceY", 4, 2, -1, 1, Q("29.255531 mm")))
sketch1.addConstraint(Sketcher.Constraint("DistanceY", 6, 2, -1, 1, Q("32.555458 mm")))
sketch1.addConstraint(Sketcher.Constraint("DistanceX", 8, 2, -1, 1, Q("49.964361 mm")))
sketch1.addConstraint(Sketcher.Constraint("DistanceX", 9, 2, -1, 1, Q("54.881361 mm")))
sketch1.addConstraint(Sketcher.Constraint("DistanceY", 9, 2, -1, 1, Q("30.80648 mm")))
sketch1.addConstraint(Sketcher.Constraint("DistanceX", 12, 2, -1, 1, Q("56.92425 mm")))
sketch1.addConstraint(Sketcher.Constraint("DistanceX", 13, 1, -1, 1, Q("57.303472 mm")))
sketch1.addConstraint(Sketcher.Constraint("DistanceX", 22, 2, -1, 1, Q("58.051741 mm")))
sketch1.addConstraint(Sketcher.Constraint("DistanceY", 22, 2, -1, 1, Q("85.265589 mm")))
sketch1.addConstraint(Sketcher.Constraint("DistanceY", 23, 1, -1, 1, Q("88.885341 mm")))
sketch1.addConstraint(Sketcher.Constraint("DistanceY", 24, 2, -1, 1, Q("94.58319 mm")))
sketch1.addConstraint(Sketcher.Constraint("DistanceX", 25, 2, -1, 1, Q("58.812349 mm")))
sketch1.addConstraint(Sketcher.Constraint("DistanceY", 25, 2, -1, 1, Q("99.500191 mm")))
sketch1.addConstraint(Sketcher.Constraint("DistanceX", 28, 2, -1, 1, Q("45.38536 mm")))
sketch1.addConstraint(Sketcher.Constraint("DistanceX", 29, 1, -1, 1, Q("41.559411 mm")))
sketch1.addConstraint(Sketcher.Constraint("DistanceY", 31, 1, -1, 1, Q("107.831619 mm")))
sketch1.addConstraint(Sketcher.Constraint("DistanceX", 38, 2, -1, 1, Q("4.848641 mm")))
sketch1.addConstraint(Sketcher.Constraint("DistanceX", -1, 1, 40, 2, Q("4.964361 mm")))
sketch1.addConstraint(Sketcher.Constraint("DistanceY", 40, 2, -1, 1, Q("104.110331 mm")))
sketch1.addConstraint(Sketcher.Constraint("DistanceX", -1, 1, 41, 2, Q("9.881361 mm")))
sketch1.addConstraint(Sketcher.Constraint("DistanceY", 41, 2, -1, 1, Q("103.431178 mm")))
sketch1.addConstraint(Sketcher.Constraint("DistanceX", -1, 1, 44, 2, Q("11.958589 mm")))
sketch1.addConstraint(Sketcher.Constraint("DistanceX", -1, 1, 46, 2, Q("13.832189 mm")))
sketch1.addConstraint(Sketcher.Constraint("DistanceX", -1, 1, 47, 1, Q("16.226519 mm")))
sketch1.addConstraint(Sketcher.Constraint("DistanceX", -1, 1, 57, 2, Q("13.812349 mm")))
sketch1.addConstraint(Sketcher.Constraint("DistanceY", 60, 2, -1, 1, Q("33.273879 mm")))
sketch1.addConstraint(Sketcher.Constraint("DistanceX", 61, 1, -1, 1, Q("7.05639 mm")))
sketch1.addConstraint(Sketcher.Constraint("DistanceX", 62, 2, -1, 1, Q("8.639751 mm")))
sketch1.addConstraint(Sketcher.Constraint("Distance", 10, Q("5.365164 mm")))
sketch1.addConstraint(Sketcher.Constraint("Distance", 12, Q("8.021552 mm")))
sketch1.addConstraint(Sketcher.Constraint("Distance", 16, Q("7.398686 mm")))
sketch1.addConstraint(Sketcher.Constraint("Distance", 26, Q("5.365164 mm")))
sketch1.addConstraint(Sketcher.Constraint("Distance", 28, Q("5.917873 mm")))
sketch1.addConstraint(Sketcher.Constraint("Distance", 32, Q("5.518433 mm")))
sketch1.addConstraint(Sketcher.Constraint("Distance", 36, Q("6.438398 mm")))
sketch1.addConstraint(Sketcher.Constraint("Distance", 40, Q("6.285663 mm")))
sketch1.addConstraint(Sketcher.Constraint("Distance", 42, Q("5.365164 mm")))
sketch1.addConstraint(Sketcher.Constraint("Distance", 44, Q("7.902893 mm")))
sketch1.addConstraint(Sketcher.Constraint("Distance", 52, Q("9.412704 mm")))
sketch1.addConstraint(Sketcher.Constraint("Distance", 56, Q("9.166562 mm")))
sketch1.addConstraint(Sketcher.Constraint("Distance", 58, Q("5.365164 mm")))
sketch1.addConstraint(Sketcher.Constraint("Distance", 60, Q("10.023355 mm")))
sketch1.addConstraint(Sketcher.Constraint("DistanceX", 5, 3, -1, 1, Q("37.153097 mm")))
sketch1.addConstraint(Sketcher.Constraint("DistanceX", 7, 3, -1, 1, Q("39.924268 mm")))
sketch1.addConstraint(Sketcher.Constraint("DistanceX", 9, 3, -1, 1, Q("51.828967 mm")))
sketch1.addConstraint(Sketcher.Constraint("DistanceX", 11, 3, -1, 1, Q("54.426437 mm")))
sketch1.addConstraint(Sketcher.Constraint("DistanceY", 11, 3, -1, 1, Q("37.236285 mm")))
sketch1.addConstraint(Sketcher.Constraint("DistanceX", 13, 3, -1, 1, Q("61.710308 mm")))
sketch1.addConstraint(Sketcher.Constraint("DistanceX", 21, 3, -1, 1, Q("65.223014 mm")))
sketch1.addConstraint(Sketcher.Constraint("DistanceX", 27, 3, -1, 1, Q("52.382544 mm")))
sketch1.addConstraint(Sketcher.Constraint("DistanceY", 27, 3, -1, 1, Q("99.045266 mm")))
sketch1.addConstraint(Sketcher.Constraint("DistanceX", 31, 3, -1, 1, Q("36.250028 mm")))
sketch1.addConstraint(Sketcher.Constraint("DistanceX", 39, 3, -1, 1, Q("2.499295 mm")))
sketch1.addConstraint(Sketcher.Constraint("DistanceX", -1, 1, 43, 3, Q("9.426437 mm")))
sketch1.addConstraint(Sketcher.Constraint("DistanceY", 43, 3, -1, 1, Q("97.001373 mm")))
sketch1.addConstraint(Sketcher.Constraint("DistanceX", -1, 1, 45, 3, Q("16.744646 mm")))
sketch1.addConstraint(Sketcher.Constraint("DistanceX", -1, 1, 55, 3, Q("16.624852 mm")))
sketch1.addConstraint(Sketcher.Constraint("DistanceX", -1, 1, 57, 3, Q("9.852187 mm")))
sketch1.addConstraint(Sketcher.Constraint("DistanceY", 57, 3, -1, 1, Q("37.789862 mm")))
sketch1.addConstraint(Sketcher.Constraint("DistanceX", -1, 1, 59, 3, Q("7.382544 mm")))
sketch1.addConstraint(Sketcher.Constraint("DistanceY", 59, 3, -1, 1, Q("35.192392 mm")))
sketch1.addConstraint(Sketcher.Constraint("DistanceX", 61, 3, -1, 1, Q("4.991402 mm")))
sketch1.addConstraint(Sketcher.Constraint("DistanceX", 5, 1, -1, 1, Q("35.548324 mm")))
sketch1.addConstraint(Sketcher.Constraint("DistanceX", 14, 2, -1, 1, Q("59.257923 mm")))
sketch1.addConstraint(Sketcher.Constraint("DistanceX", 15, 1, -1, 1, Q("61.555384 mm")))
sketch1.addConstraint(Sketcher.Constraint("DistanceX", 19, 2, -1, 1, Q("68.670975 mm")))
sketch1.addConstraint(Sketcher.Constraint("DistanceX", 21, 1, -1, 1, Q("60.415366 mm")))
sketch1.addConstraint(Sketcher.Constraint("DistanceX", 35, 2, -1, 1, Q("16.704844 mm")))
sketch1.addConstraint(Sketcher.Constraint("DistanceX", 37, 1, -1, 1, Q("10.835352 mm")))
sketch1.addConstraint(Sketcher.Constraint("DistanceX", -1, 1, 51, 2, Q("23.670975 mm")))
sketch1.addConstraint(Sketcher.Constraint("DistanceX", -1, 1, 53, 1, Q("13.076826 mm")))
sketch1.addConstraint(Sketcher.Constraint("DistanceX", -1, 1, 54, 2, Q("12.093375 mm")))
pad1 = body.newObject("PartDesign::Pad", "Pad")
pad1.Profile = sketch1
pad1.Length = 30

doc.recompute()
